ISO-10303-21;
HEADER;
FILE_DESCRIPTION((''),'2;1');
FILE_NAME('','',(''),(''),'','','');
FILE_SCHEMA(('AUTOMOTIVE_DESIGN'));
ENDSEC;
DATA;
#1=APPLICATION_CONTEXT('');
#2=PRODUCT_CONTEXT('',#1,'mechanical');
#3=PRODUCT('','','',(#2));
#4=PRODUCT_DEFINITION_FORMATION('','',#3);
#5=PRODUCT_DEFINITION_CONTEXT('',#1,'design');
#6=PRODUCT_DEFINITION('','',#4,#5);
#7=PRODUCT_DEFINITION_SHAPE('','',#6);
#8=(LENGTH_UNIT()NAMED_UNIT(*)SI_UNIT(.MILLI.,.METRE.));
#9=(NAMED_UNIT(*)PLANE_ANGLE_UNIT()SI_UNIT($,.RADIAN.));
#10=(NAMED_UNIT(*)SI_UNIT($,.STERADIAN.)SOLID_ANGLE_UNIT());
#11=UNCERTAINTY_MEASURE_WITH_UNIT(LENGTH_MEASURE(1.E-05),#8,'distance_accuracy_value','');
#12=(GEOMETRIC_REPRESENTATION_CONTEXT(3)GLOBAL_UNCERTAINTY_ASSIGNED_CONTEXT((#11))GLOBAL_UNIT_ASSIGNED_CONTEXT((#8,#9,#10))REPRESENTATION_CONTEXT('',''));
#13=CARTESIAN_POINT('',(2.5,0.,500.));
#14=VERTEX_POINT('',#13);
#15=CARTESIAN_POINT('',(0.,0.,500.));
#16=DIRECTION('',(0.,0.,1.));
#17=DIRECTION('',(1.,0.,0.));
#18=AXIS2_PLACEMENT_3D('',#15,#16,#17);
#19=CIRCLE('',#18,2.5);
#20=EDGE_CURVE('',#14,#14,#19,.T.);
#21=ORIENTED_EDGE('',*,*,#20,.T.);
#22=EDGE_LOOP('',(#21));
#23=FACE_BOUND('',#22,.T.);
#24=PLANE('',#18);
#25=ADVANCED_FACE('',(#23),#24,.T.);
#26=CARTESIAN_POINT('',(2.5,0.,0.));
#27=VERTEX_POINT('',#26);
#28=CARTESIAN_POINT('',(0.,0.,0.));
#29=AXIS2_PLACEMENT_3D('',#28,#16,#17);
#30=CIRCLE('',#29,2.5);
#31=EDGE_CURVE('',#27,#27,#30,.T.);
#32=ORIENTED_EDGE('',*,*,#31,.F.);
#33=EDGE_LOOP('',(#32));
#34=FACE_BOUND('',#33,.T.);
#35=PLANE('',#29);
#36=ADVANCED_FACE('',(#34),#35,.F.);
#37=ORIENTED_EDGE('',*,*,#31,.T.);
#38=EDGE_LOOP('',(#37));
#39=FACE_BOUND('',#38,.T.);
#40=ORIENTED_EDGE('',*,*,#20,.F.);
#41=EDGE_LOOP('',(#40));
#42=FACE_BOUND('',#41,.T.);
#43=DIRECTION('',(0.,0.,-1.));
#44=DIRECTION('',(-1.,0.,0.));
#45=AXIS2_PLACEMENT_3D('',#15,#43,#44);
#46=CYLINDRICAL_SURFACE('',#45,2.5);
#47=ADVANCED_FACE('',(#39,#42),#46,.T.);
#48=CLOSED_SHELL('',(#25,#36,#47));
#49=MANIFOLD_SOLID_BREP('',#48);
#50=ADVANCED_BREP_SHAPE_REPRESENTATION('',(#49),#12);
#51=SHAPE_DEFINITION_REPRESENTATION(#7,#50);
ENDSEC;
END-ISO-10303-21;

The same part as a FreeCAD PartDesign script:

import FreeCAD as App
import Part
import Sketcher
Q = App.Units.Quantity

doc = App.newDocument("Part")
body = doc.addObject("PartDesign::Body", "Body")

# Sketch on XY plane
sketch1 = body.newObject("Sketcher::SketchObject", "Sketch")
sketch1.AttachmentSupport = (doc.getObject("XY_Plane"), [""])
sketch1.MapMode = "FlatFace"
sketch1.addGeometry(Part.Circle(App.Vector(0, 0, 0), App.Vector(0, 0, 1), 2.5), False)
sketch1.addConstraint([
    Sketcher.Constraint("Coincident", 0, 3, -1, 1),
    Sketcher.Constraint("Diameter", 0, Q("5 mm")),
])
pad1 = body.newObject("PartDesign::Pad", "Pad")
pad1.Profile = sketch1
pad1.Length = 500

doc.recompute()
